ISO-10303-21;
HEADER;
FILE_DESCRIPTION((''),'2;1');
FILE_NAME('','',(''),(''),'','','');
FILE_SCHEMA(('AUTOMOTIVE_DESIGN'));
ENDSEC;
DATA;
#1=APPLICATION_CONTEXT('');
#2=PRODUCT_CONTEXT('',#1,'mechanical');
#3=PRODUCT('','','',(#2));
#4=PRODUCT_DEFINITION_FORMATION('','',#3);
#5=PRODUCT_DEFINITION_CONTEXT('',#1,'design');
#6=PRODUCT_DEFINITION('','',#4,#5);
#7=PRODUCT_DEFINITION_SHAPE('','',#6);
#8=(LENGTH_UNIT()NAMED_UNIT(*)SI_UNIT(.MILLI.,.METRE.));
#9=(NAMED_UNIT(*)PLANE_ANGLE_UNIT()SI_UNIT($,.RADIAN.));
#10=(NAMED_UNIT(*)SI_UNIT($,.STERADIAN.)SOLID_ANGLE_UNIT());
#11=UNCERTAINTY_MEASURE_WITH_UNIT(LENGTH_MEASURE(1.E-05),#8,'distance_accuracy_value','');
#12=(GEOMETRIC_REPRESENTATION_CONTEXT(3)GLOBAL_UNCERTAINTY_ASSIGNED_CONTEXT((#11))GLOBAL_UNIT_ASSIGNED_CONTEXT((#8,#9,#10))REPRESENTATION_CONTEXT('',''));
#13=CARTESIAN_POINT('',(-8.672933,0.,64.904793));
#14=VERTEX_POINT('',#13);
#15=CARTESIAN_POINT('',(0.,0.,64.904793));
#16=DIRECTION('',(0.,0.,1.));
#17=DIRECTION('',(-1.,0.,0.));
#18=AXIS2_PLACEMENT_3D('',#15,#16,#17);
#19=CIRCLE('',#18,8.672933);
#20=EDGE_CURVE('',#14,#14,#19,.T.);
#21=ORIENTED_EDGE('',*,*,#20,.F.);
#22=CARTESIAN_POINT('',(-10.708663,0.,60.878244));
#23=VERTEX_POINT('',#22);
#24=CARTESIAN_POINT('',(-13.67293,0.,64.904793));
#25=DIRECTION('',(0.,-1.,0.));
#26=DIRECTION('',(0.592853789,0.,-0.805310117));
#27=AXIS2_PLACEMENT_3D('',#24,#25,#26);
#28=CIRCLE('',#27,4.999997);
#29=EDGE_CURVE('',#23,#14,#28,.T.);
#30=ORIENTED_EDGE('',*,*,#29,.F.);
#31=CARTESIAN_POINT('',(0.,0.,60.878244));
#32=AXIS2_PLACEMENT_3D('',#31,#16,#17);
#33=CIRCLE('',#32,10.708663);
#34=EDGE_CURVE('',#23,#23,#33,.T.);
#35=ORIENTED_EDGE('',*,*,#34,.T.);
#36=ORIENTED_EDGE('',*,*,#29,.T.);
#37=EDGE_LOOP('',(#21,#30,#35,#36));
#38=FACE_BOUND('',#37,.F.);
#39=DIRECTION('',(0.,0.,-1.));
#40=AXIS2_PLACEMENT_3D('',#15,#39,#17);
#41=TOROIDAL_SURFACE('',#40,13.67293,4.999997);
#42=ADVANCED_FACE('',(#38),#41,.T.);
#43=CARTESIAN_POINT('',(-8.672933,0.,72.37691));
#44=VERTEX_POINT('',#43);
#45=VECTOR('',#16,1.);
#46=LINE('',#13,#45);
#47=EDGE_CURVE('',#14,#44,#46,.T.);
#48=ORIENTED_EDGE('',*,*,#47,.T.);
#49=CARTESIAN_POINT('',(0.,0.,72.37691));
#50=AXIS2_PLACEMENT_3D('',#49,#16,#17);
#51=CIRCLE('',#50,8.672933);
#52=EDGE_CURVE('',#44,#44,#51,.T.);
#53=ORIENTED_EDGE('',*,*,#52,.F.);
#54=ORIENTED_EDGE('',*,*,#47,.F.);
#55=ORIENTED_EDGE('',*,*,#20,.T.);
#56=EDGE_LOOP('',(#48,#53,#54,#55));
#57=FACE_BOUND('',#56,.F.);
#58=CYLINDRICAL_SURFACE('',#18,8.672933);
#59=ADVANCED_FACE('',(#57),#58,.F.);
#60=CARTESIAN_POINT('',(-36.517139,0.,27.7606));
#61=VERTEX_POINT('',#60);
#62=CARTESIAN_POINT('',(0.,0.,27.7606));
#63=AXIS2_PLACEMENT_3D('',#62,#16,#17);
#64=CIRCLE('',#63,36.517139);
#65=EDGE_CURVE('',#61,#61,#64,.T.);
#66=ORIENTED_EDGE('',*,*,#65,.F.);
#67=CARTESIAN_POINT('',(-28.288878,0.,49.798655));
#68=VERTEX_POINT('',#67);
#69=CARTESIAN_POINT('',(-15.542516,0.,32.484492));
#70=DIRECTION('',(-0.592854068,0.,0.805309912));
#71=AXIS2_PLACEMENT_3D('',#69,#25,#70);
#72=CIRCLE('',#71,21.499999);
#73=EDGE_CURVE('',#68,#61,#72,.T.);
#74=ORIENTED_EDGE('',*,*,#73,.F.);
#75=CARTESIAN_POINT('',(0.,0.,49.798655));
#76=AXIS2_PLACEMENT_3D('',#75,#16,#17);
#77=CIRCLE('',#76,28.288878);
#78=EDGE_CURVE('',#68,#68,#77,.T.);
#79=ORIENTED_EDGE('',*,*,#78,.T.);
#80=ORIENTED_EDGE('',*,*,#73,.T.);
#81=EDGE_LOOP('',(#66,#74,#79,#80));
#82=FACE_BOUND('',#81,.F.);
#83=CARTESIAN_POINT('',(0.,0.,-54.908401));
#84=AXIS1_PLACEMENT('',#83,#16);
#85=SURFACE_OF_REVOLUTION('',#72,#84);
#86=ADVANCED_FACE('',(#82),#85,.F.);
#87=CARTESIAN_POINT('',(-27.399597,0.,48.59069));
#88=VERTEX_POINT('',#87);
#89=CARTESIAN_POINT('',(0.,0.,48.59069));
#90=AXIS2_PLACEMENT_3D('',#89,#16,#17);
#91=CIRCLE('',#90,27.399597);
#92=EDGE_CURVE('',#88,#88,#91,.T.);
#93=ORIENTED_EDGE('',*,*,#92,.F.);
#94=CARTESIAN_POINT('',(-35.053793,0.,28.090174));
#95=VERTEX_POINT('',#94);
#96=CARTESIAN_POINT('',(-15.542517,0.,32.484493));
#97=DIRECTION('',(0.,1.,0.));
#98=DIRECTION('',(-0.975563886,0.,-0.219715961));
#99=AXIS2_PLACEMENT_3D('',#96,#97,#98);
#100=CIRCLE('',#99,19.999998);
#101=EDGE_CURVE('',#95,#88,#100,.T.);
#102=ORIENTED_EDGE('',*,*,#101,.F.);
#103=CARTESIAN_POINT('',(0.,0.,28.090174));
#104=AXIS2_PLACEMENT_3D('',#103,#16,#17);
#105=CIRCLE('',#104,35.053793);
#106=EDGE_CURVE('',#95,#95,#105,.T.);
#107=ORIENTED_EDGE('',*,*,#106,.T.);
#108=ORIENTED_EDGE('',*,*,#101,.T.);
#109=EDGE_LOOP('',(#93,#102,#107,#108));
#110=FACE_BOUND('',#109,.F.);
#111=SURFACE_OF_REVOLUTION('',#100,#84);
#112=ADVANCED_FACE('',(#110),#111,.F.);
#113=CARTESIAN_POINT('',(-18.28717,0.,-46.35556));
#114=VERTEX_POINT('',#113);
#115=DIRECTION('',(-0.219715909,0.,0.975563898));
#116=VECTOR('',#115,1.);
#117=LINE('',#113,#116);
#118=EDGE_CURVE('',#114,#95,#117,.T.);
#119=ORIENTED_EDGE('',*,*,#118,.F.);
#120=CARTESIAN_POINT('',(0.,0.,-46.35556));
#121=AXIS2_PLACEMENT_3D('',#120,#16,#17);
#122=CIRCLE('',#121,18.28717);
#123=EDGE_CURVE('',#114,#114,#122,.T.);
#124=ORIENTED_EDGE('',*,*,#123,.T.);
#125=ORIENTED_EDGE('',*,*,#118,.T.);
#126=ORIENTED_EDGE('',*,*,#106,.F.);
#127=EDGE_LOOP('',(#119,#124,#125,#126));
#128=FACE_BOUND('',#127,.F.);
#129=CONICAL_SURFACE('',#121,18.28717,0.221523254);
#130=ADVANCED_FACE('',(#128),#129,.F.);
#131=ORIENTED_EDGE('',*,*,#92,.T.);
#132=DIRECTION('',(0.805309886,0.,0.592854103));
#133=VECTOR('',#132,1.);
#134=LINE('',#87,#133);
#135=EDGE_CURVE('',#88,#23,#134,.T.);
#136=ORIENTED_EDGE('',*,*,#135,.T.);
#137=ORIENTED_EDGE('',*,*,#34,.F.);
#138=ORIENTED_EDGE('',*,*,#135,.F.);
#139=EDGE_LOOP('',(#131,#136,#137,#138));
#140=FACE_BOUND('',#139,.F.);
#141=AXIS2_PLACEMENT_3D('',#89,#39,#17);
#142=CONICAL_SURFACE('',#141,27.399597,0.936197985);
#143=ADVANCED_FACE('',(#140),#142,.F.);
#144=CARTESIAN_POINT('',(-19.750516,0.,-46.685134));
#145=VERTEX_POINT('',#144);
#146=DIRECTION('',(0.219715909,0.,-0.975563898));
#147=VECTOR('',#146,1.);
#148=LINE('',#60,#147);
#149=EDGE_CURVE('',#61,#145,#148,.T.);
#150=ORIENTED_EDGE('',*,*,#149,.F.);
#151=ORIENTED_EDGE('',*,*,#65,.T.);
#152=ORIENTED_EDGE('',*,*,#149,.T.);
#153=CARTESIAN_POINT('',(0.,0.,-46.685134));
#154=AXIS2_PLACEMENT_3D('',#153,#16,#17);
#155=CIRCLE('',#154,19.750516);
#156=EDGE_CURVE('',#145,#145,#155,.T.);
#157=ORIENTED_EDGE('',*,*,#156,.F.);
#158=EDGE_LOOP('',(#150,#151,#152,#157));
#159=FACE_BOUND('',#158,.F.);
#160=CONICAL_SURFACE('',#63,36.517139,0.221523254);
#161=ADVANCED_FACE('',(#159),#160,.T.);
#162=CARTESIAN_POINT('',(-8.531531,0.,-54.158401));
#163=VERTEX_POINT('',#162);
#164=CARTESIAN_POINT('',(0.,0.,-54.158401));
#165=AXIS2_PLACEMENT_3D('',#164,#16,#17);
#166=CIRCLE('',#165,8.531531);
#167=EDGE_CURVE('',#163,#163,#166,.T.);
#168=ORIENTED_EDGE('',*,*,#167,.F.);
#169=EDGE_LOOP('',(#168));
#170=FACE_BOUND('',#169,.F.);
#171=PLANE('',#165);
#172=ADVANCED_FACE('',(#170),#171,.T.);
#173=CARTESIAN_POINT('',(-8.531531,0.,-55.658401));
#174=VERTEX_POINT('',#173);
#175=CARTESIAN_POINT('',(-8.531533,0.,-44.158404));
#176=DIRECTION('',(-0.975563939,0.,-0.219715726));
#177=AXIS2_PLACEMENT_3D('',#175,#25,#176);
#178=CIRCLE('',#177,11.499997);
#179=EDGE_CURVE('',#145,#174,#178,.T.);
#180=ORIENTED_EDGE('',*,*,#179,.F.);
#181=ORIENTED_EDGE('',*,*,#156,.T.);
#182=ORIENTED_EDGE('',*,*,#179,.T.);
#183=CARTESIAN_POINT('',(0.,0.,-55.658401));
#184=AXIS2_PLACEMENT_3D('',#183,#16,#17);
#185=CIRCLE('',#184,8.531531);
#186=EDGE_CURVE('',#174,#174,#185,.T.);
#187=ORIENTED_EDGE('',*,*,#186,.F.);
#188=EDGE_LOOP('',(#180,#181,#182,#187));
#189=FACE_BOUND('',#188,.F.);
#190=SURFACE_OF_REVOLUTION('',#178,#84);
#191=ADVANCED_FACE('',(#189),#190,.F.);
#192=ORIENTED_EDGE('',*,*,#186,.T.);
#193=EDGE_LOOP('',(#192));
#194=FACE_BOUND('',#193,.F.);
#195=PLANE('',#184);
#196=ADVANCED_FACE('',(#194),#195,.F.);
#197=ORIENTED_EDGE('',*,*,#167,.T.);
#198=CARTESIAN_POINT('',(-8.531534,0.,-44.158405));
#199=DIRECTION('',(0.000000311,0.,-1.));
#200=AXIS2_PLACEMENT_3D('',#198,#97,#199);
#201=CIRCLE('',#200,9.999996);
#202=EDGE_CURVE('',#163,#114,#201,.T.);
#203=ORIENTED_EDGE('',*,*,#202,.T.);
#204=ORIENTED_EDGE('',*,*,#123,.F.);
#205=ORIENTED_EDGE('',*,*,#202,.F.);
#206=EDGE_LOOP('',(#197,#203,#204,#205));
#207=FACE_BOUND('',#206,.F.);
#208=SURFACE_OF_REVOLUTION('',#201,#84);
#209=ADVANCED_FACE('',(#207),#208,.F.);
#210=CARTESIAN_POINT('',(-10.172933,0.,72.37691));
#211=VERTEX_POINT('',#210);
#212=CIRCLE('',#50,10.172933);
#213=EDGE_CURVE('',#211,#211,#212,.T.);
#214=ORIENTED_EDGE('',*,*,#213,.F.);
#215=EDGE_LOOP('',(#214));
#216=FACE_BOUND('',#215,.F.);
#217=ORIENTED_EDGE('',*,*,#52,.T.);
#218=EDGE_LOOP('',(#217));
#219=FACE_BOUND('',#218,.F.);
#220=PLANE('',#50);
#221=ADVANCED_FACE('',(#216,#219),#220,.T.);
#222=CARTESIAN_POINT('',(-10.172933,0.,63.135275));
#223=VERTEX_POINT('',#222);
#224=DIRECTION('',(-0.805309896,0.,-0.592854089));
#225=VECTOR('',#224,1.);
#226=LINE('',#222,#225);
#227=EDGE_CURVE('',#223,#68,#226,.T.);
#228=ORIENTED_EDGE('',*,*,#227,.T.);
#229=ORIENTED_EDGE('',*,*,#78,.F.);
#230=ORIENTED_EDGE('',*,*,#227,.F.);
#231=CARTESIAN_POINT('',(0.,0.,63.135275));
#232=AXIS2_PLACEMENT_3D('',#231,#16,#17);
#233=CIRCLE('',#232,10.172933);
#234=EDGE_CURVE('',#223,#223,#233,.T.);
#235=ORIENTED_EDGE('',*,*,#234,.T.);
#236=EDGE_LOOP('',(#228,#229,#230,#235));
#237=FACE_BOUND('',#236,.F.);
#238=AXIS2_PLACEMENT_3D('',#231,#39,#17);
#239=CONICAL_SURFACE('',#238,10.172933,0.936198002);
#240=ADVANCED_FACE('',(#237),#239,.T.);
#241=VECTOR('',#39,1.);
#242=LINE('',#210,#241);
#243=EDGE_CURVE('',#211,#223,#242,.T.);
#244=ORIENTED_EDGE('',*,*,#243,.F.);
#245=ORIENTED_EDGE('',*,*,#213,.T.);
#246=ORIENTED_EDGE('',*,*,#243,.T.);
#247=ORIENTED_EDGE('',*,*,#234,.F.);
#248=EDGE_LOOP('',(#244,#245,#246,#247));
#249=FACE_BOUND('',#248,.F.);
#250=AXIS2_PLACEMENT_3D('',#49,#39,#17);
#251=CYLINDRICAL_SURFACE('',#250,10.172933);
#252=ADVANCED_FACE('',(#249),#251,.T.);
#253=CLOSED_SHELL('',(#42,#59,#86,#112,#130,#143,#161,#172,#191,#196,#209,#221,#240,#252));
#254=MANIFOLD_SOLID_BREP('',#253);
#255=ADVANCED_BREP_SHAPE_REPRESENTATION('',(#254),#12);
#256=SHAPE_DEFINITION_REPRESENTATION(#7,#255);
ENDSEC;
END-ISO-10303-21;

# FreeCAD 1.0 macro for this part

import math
import FreeCAD as App
import Part
import Sketcher
Q = App.Units.Quantity

doc = App.newDocument("Part")
body = doc.addObject("PartDesign::Body", "Body")

# Sketch on XZ plane
sketch1 = body.newObject("Sketcher::SketchObject", "Sketch")
sketch1.AttachmentSupport = (doc.getObject("XZ_Plane"), [""])
sketch1.MapMode = "FlatFace"
sketch1.addGeometry([
    Part.LineSegment(App.Vector(-8.672933, 64.904793, 0), App.Vector(-8.672933, 72.37691, 0)),  # 0
    Part.LineSegment(App.Vector(-8.672933, 72.37691, 0), App.Vector(-10.172933, 72.37691, 0)),  # 1
    Part.LineSegment(App.Vector(-10.172933, 72.37691, 0), App.Vector(-10.172933, 63.135275, 0)),  # 2
    Part.LineSegment(App.Vector(-10.172933, 63.135275, 0), App.Vector(-28.288878, 49.798655, 0)),  # 3
    Part.ArcOfCircle(Part.Circle(App.Vector(-15.542516, 32.484492, 0), App.Vector(0, 0, 1), 21.499999), math.radians(126.359804), math.radians(192.692349)),  # 4
    Part.LineSegment(App.Vector(-36.517139, 27.7606, 0), App.Vector(-19.750516, -46.685134, 0)),  # 5
    Part.ArcOfCircle(Part.Circle(App.Vector(-8.531533, -44.158404, 0), App.Vector(0, 0, 1), 11.499997), math.radians(-167.307663), math.radians(-89.999988)),  # 6
    Part.LineSegment(App.Vector(-8.531531, -55.658401, 0), App.Vector(0, -55.658401, 0)),  # 7
    Part.LineSegment(App.Vector(0, -55.658401, 0), App.Vector(0, -54.158401, 0)),  # 8
    Part.LineSegment(App.Vector(0, -54.158401, 0), App.Vector(-8.531531, -54.158401, 0)),  # 9
    Part.ArcOfCircle(Part.Circle(App.Vector(-8.531534, -44.158405, 0), App.Vector(0, 0, 1), 9.999996), math.radians(-167.307671), math.radians(-89.999982)),  # 10
    Part.LineSegment(App.Vector(-18.28717, -46.35556, 0), App.Vector(-35.053793, 28.090174, 0)),  # 11
    Part.ArcOfCircle(Part.Circle(App.Vector(-15.542517, 32.484493, 0), App.Vector(0, 0, 1), 19.999998), math.radians(126.359803), math.radians(192.692351)),  # 12
    Part.LineSegment(App.Vector(-27.399597, 48.59069, 0), App.Vector(-10.708663, 60.878244, 0)),  # 13
    Part.ArcOfCircle(Part.Circle(App.Vector(-13.67293, 64.904792, 0), App.Vector(0, 0, 1), 4.999997), math.radians(-53.640216), math.radians(0.000006)),  # 14
], False)
sketch1.addConstraint([
    Sketcher.Constraint("Coincident", 0, 2, 1, 1),
    Sketcher.Constraint("Coincident", 1, 2, 2, 1),
    Sketcher.Constraint("Coincident", 2, 2, 3, 1),
    Sketcher.Constraint("Coincident", 3, 2, 4, 1),
    Sketcher.Constraint("Coincident", 4, 2, 5, 1),
    Sketcher.Constraint("Coincident", 5, 2, 6, 1),
    Sketcher.Constraint("Coincident", 6, 2, 7, 1),
    Sketcher.Constraint("Coincident", 7, 2, 8, 1),
    Sketcher.Constraint("Coincident", 8, 2, 9, 1),
    Sketcher.Constraint("Coincident", 9, 2, 10, 2),
    Sketcher.Constraint("Coincident", 10, 1, 11, 1),
    Sketcher.Constraint("Coincident", 11, 2, 12, 2),
    Sketcher.Constraint("Coincident", 12, 1, 13, 1),
    Sketcher.Constraint("Coincident", 13, 2, 14, 1),
    Sketcher.Constraint("Coincident", 14, 2, 0, 1),
    Sketcher.Constraint("Vertical", 0),
    Sketcher.Constraint("Horizontal", 1),
    Sketcher.Constraint("Vertical", 2),
    Sketcher.Constraint("Horizontal", 7),
    Sketcher.Constraint("Vertical", 8),
    Sketcher.Constraint("Horizontal", 9),
    Sketcher.Constraint("Coincident", 10, 3, 6, 3),
    Sketcher.Constraint("Coincident", 12, 3, 4, 3),
    Sketcher.Constraint("PointOnObject", 7, 2, -2),
    Sketcher.Constraint("Radius", 12, Q("19.999998 mm")),
    Sketcher.Constraint("Radius", 4, Q("21.499999 mm")),
    Sketcher.Constraint("DistanceX", 1, 2, 1, 1, Q("1.5 mm")),
    Sketcher.Constraint("DistanceY", 8, 1, 8, 2, Q("1.5 mm")),
    Sketcher.Constraint("Radius", 6, Q("11.499997 mm")),
    Sketcher.Constraint("Radius", 14, Q("4.999997 mm")),
    Sketcher.Constraint("DistanceX", 5, 2, 4, 3, Q("4.208 mm")),
    Sketcher.Constraint("DistanceY", 6, 2, 4, 2, Q("83.419001 mm")),
    Sketcher.Constraint("Distance", 13, Q("20.726101 mm")),
    Sketcher.Constraint("DistanceX", 7, 1, 7, 2, Q("8.531531 mm")),
    Sketcher.Constraint("DistanceX", 9, 2, 9, 1, Q("8.531531 mm")),
    Sketcher.Constraint("DistanceY", -1, 1, 4, 2, Q("27.7606 mm")),
    Sketcher.Constraint("DistanceY", 12, 3, 14, 3, Q("32.4203 mm")),
    Sketcher.Constraint("DistanceX", 0, 2, 6, 3, Q("0.1414 mm")),
    Sketcher.Constraint("Distance", 3, Q("22.495619 mm")),
    Sketcher.Constraint("DistanceY", 0, 1, 0, 2, Q("7.472117 mm")),
    Sketcher.Constraint("DistanceY", 2, 2, 2, 1, Q("9.241635 mm")),
    Sketcher.Constraint("DistanceX", 14, 3, -1, 1, Q("13.67293 mm")),
    Sketcher.Constraint("DistanceY", -1, 1, 0, 2, Q("72.37691 mm")),
    Sketcher.Constraint("DistanceX", 3, 2, -1, 1, Q("28.288878 mm")),
    Sketcher.Constraint("DistanceX", 4, 2, -1, 1, Q("36.517139 mm")),
    Sketcher.Constraint("DistanceX", 10, 1, -1, 1, Q("18.28717 mm")),
    Sketcher.Constraint("DistanceY", -1, 1, 12, 1, Q("48.59069 mm")),
    Sketcher.Constraint("DistanceY", 11, 2, 12, 3, Q("4.394319 mm")),
])
revolution = body.newObject("PartDesign::Revolution", "Revolution")
revolution.Profile = sketch1
revolution.ReferenceAxis = (sketch1, ["V_Axis"])
revolution.Angle = 360

doc.recompute()
